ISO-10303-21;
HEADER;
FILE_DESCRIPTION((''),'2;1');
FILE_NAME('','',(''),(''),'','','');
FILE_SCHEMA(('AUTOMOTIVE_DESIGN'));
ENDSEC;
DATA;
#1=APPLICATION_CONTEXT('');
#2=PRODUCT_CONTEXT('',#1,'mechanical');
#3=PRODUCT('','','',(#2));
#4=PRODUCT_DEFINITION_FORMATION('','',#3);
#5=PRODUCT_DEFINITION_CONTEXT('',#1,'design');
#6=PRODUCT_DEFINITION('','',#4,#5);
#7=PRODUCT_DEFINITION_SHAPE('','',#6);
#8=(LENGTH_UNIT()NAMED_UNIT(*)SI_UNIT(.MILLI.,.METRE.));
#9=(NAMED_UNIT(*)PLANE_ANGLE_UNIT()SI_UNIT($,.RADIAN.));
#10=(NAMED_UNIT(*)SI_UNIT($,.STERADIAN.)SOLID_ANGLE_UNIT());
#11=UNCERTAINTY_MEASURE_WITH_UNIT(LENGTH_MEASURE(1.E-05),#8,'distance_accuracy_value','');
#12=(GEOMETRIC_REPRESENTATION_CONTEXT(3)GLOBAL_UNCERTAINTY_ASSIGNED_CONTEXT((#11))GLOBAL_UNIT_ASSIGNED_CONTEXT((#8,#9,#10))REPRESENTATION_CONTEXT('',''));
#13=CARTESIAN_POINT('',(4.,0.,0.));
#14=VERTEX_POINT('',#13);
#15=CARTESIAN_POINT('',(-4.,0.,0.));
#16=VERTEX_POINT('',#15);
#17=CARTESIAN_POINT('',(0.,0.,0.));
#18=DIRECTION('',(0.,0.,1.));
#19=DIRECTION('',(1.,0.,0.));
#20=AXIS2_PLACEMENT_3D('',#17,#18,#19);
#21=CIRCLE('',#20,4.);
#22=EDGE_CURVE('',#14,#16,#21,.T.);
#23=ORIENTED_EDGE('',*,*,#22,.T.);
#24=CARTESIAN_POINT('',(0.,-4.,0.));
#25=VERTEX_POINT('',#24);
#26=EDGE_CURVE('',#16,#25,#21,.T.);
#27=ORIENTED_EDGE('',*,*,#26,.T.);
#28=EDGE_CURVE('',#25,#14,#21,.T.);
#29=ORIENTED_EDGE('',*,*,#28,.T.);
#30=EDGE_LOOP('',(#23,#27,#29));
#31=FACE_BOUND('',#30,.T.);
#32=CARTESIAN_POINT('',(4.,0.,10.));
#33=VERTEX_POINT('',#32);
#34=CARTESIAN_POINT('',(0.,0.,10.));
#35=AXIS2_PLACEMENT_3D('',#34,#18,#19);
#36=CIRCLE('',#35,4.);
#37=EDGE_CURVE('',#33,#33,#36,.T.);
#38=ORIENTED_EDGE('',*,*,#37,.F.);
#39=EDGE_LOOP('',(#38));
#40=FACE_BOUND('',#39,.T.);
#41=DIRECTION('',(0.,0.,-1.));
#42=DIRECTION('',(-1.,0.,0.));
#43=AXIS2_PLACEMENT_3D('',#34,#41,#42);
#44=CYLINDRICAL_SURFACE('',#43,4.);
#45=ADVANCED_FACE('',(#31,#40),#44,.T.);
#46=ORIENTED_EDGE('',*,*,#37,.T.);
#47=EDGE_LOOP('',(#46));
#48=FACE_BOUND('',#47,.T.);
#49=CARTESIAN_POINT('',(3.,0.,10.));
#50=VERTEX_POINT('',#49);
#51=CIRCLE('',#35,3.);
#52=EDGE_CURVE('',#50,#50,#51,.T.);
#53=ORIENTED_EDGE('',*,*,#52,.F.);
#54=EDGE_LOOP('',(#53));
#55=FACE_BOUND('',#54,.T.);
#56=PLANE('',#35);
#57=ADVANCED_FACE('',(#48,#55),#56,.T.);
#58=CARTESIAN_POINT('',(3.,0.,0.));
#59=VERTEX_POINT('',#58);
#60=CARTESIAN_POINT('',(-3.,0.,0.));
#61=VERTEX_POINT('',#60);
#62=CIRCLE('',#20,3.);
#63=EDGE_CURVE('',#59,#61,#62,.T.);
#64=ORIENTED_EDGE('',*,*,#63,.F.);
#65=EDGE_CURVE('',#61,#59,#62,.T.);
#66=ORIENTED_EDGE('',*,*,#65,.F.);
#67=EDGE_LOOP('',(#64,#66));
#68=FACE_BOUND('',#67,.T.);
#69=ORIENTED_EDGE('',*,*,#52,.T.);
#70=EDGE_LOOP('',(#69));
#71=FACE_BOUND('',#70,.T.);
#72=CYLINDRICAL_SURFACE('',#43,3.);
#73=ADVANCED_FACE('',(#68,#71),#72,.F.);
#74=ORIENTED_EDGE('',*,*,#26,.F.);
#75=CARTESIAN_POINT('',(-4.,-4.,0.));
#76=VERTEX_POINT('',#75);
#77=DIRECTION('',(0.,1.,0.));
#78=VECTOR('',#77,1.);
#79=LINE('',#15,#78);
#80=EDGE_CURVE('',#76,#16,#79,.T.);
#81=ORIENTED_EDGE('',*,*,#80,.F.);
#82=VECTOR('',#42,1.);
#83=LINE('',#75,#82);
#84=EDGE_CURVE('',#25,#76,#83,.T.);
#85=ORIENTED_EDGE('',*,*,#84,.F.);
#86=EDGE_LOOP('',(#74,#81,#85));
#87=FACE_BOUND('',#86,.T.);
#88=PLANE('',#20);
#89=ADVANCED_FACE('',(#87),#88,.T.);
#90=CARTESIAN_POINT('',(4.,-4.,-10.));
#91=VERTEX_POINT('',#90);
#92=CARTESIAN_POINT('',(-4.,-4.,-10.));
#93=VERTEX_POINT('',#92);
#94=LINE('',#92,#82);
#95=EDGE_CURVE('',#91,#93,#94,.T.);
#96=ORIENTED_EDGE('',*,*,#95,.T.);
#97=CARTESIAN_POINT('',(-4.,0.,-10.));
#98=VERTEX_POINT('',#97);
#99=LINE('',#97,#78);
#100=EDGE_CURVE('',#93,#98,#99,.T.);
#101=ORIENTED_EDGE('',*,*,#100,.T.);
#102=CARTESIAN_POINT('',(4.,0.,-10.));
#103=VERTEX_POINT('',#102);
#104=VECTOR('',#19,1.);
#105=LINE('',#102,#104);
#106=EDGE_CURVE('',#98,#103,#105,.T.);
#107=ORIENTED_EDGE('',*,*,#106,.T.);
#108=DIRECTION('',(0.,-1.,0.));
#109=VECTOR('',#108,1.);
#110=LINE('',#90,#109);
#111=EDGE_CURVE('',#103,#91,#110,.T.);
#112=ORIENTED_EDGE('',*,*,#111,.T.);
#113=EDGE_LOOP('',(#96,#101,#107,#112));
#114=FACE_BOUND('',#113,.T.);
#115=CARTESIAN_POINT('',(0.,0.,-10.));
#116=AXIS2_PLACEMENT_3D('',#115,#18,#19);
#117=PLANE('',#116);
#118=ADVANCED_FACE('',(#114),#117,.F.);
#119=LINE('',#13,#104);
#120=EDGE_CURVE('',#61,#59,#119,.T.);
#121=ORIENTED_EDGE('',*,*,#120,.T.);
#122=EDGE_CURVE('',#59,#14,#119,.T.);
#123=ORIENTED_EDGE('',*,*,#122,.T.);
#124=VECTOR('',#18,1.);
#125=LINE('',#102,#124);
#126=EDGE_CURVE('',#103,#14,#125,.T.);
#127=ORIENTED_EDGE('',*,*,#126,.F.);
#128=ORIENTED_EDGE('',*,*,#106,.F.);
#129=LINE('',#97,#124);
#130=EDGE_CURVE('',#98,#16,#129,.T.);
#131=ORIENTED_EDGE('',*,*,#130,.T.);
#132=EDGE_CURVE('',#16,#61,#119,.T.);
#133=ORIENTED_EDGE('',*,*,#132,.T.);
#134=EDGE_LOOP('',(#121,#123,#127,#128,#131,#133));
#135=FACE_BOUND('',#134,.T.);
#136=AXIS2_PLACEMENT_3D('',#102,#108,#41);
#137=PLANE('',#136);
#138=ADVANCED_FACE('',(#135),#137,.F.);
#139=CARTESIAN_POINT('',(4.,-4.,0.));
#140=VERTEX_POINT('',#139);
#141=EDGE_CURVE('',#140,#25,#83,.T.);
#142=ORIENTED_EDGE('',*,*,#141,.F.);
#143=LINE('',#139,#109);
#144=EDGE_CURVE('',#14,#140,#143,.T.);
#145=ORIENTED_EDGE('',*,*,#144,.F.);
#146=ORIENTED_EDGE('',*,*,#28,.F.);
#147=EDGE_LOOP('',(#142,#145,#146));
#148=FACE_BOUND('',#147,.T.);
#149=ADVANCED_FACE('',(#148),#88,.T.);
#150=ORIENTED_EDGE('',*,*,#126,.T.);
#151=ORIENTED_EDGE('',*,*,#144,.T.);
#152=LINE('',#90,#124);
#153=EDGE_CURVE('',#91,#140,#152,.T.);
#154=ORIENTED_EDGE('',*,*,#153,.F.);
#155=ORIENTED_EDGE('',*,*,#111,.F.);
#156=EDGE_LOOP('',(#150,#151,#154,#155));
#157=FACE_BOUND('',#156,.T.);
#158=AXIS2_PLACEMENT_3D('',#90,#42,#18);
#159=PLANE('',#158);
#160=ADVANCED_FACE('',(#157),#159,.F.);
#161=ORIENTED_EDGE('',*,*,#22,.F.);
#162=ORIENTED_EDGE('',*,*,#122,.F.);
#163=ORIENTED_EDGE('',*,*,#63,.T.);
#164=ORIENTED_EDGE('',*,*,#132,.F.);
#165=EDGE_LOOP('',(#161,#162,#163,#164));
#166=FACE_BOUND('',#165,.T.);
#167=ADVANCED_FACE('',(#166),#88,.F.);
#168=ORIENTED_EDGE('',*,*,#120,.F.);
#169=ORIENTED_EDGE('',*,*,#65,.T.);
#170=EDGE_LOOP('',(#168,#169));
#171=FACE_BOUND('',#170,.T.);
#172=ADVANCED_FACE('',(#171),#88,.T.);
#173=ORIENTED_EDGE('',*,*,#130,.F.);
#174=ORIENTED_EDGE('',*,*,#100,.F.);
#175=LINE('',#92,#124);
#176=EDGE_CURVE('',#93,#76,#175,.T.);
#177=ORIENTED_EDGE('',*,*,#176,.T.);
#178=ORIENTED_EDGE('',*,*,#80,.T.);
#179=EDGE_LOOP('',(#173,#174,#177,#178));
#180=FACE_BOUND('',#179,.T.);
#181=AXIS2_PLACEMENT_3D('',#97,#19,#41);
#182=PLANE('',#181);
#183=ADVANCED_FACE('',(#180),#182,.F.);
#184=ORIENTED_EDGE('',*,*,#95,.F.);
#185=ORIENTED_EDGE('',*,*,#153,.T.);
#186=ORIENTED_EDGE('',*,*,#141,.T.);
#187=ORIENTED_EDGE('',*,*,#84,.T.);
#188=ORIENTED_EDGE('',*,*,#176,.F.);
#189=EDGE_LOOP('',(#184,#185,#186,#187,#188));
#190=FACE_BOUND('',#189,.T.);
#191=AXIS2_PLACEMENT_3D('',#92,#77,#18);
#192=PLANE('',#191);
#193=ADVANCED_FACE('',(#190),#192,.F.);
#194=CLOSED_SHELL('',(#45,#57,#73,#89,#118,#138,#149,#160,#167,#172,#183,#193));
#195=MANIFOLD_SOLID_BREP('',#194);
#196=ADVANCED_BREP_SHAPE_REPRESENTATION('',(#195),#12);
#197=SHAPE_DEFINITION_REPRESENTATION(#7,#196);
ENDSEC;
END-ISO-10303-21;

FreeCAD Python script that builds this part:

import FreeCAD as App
import Part
import Sketcher
from FreeCAD import Vector
Q = App.Units.Quantity


def add_polygon(sketch, points):
    """Adds a closed chain of lines whose ends are joined by coincident constraints."""
    first, n = sketch.GeometryCount, len(points)
    for a, b in zip(points, points[1:] + points[:1]):
        sketch.addGeometry(Part.LineSegment(App.Vector(*a, 0), App.Vector(*b, 0)), False)
    for i in range(n):
        sketch.addConstraint(Sketcher.Constraint("Coincident", first + i, 2, first + (i + 1) % n, 1))

doc = App.newDocument("Part")
params = doc.addObject("Spreadsheet::Sheet", "Params")
for row, (alias, value) in enumerate([
    ("sketch1_diameter", "8 mm"),
    ("sketch1_diameter2", "6 mm"),
    ("pad1_length", "10 mm"),
    ("sketch2_width", "8 mm"),
    ("sketch2_height", "4 mm"),
    ("pad2_length", "10 mm"),
], start=1):
    params.set(f"A{row}", alias)
    params.set(f"B{row}", "=" + value)
    params.setAlias(f"B{row}", alias)

body = doc.addObject("PartDesign::Body", "Body")

sketch1 = body.newObject("Sketcher::SketchObject", "Sketch")
sketch1.AttachmentSupport = (doc.getObject("XY_Plane"), [""])
sketch1.MapMode = "FlatFace"
sketch1.addGeometry([
    Part.Circle(Vector(0, 0, 0), Vector(0, 0, 1), 4),
    Part.Circle(Vector(0, 0, 0), Vector(0, 0, 1), 3),
], False)
sketch1.addConstraint([
    Sketcher.Constraint("Coincident", 0, 3, -1, 1),
    Sketcher.Constraint("Coincident", 1, 3, -1, 1),
    Sketcher.Constraint("Diameter", 0, Q("8 mm")),
    Sketcher.Constraint("Diameter", 1, Q("6 mm")),
])
sketch1.setExpression("Constraints[2]", "Params.sketch1_diameter")
sketch1.setExpression("Constraints[3]", "Params.sketch1_diameter2")
pad1 = body.newObject("PartDesign::Pad", "Pad")
pad1.Profile = sketch1
pad1.setExpression("Length", "Params.pad1_length")

sketch2 = body.newObject("Sketcher::SketchObject", "Sketch001")
sketch2.AttachmentSupport = (doc.getObject("XY_Plane"), [""])
sketch2.MapMode = "FlatFace"
add_polygon(sketch2, [(4, 0), (4, -4), (-4, -4), (-4, 0)])
sketch2.addConstraint([
    Sketcher.Constraint("Vertical", 0),
    Sketcher.Constraint("Horizontal", 1),
    Sketcher.Constraint("Vertical", 2),
    Sketcher.Constraint("Horizontal", 3),
    Sketcher.Constraint("Symmetric", 2, 2, 3, 2, -1, 1),
    Sketcher.Constraint("DistanceX", 1, 2, 1, 1, Q("8 mm")),
    Sketcher.Constraint("DistanceY", 0, 2, 0, 1, Q("4 mm")),
])
sketch2.setExpression("Constraints[9]", "Params.sketch2_width")
sketch2.setExpression("Constraints[10]", "Params.sketch2_height")
pad2 = body.newObject("PartDesign::Pad", "Pad001")
pad2.Profile = sketch2
pad2.setExpression("Length", "Params.pad2_length")
pad2.Reversed = True

doc.recompute()
